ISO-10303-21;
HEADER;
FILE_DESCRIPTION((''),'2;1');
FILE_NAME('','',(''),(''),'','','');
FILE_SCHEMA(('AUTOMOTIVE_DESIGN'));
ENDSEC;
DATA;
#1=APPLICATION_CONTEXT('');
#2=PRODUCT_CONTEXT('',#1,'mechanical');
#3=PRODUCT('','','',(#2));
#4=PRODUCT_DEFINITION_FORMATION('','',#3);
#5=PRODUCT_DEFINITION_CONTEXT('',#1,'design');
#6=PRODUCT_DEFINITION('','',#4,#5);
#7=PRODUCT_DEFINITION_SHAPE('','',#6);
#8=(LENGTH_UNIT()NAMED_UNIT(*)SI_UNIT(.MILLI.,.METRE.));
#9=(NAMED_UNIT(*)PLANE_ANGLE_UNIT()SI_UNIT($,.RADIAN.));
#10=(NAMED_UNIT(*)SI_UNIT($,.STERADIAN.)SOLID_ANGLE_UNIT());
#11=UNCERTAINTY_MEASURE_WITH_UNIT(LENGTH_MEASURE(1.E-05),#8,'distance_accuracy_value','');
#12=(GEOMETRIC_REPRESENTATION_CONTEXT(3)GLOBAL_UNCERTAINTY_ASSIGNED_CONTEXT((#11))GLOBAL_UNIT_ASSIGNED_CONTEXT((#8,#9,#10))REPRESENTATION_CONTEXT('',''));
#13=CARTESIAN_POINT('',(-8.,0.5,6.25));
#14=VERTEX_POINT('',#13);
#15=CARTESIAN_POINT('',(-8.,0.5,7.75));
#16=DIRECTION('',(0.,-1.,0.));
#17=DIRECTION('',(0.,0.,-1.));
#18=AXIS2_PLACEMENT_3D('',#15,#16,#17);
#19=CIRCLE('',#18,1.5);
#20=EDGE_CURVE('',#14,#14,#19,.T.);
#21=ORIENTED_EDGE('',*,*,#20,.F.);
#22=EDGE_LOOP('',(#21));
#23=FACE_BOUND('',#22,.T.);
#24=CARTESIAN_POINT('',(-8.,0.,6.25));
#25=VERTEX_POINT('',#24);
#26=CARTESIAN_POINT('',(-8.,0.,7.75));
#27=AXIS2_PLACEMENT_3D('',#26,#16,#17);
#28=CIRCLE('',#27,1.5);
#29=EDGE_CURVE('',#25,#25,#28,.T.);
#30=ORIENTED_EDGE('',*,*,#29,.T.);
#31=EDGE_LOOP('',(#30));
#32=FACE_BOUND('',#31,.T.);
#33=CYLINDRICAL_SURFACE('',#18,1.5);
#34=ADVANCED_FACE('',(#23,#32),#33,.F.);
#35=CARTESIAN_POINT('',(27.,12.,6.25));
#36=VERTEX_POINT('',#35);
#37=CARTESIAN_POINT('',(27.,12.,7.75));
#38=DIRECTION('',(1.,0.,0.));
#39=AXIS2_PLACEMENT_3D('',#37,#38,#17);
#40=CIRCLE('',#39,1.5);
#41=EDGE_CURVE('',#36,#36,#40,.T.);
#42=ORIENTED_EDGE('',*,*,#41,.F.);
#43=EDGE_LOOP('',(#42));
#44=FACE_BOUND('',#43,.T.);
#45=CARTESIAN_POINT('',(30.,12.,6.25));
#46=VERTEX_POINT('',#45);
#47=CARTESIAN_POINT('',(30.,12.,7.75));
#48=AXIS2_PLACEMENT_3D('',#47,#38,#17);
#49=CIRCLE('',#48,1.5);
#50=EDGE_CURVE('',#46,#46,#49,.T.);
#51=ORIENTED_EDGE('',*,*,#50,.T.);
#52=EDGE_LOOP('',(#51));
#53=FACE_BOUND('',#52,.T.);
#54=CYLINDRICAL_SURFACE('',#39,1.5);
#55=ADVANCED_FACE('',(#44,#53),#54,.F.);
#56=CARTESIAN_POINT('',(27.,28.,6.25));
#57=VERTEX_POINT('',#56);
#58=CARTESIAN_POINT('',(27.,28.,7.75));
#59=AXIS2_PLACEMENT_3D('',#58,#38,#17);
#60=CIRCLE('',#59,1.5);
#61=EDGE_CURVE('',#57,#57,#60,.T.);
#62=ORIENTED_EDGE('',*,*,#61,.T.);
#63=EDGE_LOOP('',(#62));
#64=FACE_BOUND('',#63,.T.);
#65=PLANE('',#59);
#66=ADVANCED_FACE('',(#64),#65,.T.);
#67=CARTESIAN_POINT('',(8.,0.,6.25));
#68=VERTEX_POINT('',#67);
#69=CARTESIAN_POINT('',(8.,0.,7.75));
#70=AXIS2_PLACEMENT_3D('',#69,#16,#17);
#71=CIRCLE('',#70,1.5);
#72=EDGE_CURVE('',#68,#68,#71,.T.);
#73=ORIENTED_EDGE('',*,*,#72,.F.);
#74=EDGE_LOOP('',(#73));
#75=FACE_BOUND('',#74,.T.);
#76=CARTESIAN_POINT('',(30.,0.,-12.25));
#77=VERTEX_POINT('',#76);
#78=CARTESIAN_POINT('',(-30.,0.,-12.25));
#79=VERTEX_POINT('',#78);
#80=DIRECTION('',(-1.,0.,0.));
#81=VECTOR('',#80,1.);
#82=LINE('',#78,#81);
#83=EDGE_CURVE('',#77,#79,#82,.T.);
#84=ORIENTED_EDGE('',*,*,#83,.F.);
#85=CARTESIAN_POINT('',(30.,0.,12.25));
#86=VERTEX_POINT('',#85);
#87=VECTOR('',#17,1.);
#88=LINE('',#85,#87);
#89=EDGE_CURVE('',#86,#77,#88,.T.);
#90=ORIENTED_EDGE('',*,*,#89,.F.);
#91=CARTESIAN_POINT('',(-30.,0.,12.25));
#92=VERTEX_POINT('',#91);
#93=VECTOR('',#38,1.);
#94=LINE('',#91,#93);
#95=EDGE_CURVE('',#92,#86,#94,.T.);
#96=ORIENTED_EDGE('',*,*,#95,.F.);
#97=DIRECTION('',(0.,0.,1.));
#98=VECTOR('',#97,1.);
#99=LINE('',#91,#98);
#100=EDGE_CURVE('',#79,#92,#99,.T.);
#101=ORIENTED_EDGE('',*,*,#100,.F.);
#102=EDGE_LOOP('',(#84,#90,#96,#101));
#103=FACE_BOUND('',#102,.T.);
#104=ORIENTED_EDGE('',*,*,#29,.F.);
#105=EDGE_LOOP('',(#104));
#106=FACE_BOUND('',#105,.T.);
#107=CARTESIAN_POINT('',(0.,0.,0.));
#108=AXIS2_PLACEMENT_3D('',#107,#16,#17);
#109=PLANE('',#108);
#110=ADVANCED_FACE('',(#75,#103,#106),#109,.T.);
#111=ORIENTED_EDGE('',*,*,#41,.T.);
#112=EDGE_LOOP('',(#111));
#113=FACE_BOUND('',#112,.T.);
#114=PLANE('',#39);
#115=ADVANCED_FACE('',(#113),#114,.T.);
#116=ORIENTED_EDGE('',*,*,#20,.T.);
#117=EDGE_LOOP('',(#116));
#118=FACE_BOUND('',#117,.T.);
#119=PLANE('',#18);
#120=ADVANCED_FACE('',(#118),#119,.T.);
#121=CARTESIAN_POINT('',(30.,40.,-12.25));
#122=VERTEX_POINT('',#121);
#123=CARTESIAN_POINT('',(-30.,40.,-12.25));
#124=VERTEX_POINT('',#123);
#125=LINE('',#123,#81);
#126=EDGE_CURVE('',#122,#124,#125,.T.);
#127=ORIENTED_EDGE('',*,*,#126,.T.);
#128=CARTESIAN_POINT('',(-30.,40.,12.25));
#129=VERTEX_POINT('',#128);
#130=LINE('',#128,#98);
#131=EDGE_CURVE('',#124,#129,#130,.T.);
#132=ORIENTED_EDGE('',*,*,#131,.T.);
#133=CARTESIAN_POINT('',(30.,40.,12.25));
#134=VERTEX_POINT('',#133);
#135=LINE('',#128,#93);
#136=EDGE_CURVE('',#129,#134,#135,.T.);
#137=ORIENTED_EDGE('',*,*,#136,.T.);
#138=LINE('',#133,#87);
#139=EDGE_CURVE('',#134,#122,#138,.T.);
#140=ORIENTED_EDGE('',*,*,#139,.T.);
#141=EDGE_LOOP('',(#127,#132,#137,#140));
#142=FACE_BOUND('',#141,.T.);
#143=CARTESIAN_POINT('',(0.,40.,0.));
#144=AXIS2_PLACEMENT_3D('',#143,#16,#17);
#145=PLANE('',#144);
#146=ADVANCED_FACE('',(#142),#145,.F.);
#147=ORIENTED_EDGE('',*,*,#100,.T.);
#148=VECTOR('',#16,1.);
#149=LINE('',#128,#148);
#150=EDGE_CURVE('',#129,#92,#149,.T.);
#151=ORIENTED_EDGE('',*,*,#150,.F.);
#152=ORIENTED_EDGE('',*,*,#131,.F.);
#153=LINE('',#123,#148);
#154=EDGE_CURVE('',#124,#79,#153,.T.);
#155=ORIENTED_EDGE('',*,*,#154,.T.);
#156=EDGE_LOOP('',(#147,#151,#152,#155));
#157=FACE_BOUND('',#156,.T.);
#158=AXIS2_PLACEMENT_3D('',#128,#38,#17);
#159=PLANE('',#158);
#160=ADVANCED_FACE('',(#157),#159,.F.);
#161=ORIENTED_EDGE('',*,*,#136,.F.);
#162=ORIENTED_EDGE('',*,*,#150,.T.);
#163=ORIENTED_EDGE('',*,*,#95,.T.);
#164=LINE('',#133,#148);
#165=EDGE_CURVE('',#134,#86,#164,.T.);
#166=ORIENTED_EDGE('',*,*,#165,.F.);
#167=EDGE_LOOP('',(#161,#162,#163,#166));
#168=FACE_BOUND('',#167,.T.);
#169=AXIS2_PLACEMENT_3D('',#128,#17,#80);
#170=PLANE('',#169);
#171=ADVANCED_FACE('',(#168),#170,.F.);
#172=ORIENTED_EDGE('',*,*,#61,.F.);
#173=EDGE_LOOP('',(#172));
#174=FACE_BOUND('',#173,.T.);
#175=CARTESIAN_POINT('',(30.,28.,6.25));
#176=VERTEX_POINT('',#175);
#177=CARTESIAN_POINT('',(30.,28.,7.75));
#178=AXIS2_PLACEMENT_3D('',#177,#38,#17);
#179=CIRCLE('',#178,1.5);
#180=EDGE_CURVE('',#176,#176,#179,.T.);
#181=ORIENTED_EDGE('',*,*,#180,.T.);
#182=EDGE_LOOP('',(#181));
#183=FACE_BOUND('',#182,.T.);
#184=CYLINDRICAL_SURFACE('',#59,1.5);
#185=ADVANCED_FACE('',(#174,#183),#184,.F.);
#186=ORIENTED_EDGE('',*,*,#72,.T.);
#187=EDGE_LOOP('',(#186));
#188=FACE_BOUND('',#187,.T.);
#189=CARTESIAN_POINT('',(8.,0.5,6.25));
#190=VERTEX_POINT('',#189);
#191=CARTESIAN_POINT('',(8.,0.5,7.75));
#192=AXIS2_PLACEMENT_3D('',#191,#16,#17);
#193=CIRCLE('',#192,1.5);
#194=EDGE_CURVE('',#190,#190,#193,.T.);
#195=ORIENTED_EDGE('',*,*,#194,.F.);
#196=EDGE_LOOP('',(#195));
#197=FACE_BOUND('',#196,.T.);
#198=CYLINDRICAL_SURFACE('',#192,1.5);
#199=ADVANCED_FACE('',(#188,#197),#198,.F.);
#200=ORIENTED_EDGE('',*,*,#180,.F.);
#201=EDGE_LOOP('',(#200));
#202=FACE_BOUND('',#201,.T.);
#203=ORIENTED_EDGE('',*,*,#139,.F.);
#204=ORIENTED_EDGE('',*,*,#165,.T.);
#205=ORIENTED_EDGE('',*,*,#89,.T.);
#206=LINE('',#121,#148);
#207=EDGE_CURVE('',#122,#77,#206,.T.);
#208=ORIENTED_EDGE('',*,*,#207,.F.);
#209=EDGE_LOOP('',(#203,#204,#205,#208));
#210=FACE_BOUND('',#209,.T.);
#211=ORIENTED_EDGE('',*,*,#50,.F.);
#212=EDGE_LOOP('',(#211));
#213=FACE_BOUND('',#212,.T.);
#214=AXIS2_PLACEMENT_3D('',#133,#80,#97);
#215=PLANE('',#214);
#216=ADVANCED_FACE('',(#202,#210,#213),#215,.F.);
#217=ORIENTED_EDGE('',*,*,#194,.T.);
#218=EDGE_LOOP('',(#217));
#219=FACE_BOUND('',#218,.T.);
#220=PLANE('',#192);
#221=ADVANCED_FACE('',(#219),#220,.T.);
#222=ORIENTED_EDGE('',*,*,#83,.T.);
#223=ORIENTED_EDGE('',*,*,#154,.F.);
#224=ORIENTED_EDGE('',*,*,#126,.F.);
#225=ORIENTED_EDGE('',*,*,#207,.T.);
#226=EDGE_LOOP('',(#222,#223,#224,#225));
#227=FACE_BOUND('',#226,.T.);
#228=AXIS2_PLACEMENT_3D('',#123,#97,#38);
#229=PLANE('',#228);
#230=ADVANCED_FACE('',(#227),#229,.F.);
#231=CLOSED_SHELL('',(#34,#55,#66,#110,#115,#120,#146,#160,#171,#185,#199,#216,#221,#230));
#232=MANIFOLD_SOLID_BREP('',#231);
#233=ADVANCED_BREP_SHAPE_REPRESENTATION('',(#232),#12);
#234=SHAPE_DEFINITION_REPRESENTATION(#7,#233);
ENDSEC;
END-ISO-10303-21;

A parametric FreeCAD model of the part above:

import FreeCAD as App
import Part
import Sketcher
from FreeCAD import Vector
Q = App.Units.Quantity

doc = App.newDocument("Part")
body = doc.addObject("PartDesign::Body", "Body")

# Sketch on XZ plane
sketch1 = doc.addObject("Sketcher::SketchObject", "Sketch")
body.addObject(sketch1)
sketch1.AttachmentSupport = (doc.XZ_Plane, [""])
sketch1.MapMode = "FlatFace"
sketch1.addGeometry([
    Part.LineSegment(Vector(-30, -12.25, 0), Vector(-30, 12.25, 0)),
    Part.LineSegment(Vector(-30, 12.25, 0), Vector(30, 12.25, 0)),
    Part.LineSegment(Vector(30, 12.25, 0), Vector(30, -12.25, 0)),
    Part.LineSegment(Vector(30, -12.25, 0), Vector(-30, -12.25, 0)),
], False)
sketch1.addConstraint([
    Sketcher.Constraint("Coincident", 0, 2, 1, 1),
    Sketcher.Constraint("Coincident", 1, 2, 2, 1),
    Sketcher.Constraint("Coincident", 2, 2, 3, 1),
    Sketcher.Constraint("Coincident", 3, 2, 0, 1),
    Sketcher.Constraint("Vertical", 0),
    Sketcher.Constraint("Horizontal", 1),
    Sketcher.Constraint("Vertical", 2),
    Sketcher.Constraint("Horizontal", 3),
    Sketcher.Constraint("Symmetric", 0, 2, 2, 2, -1, 1),
    Sketcher.Constraint("DistanceX", 1, 1, 1, 2, Q("60 mm")),
    Sketcher.Constraint("DistanceY", 0, 1, 0, 2, Q("24.5 mm")),
])
pad1 = doc.addObject("PartDesign::Pad", "Pad")
body.addObject(pad1)
pad1.Profile = sketch1
pad1.Length = 40
pad1.Reversed = True

# Sketch on XZ plane
sketch2 = doc.addObject("Sketcher::SketchObject", "Sketch001")
body.addObject(sketch2)
sketch2.AttachmentSupport = (doc.XZ_Plane, [""])
sketch2.MapMode = "FlatFace"
sketch2.addGeometry([
    Part.Circle(Vector(-8, 7.75, 0), Vector(0, 0, 1), 1.5),
    Part.Circle(Vector(8, 7.75, 0), Vector(0, 0, 1), 1.5),
], False)
sketch2.addConstraint([
    Sketcher.Constraint("Equal", 0, 1),
    Sketcher.Constraint("Symmetric", 0, 3, 1, 3, -2),
    Sketcher.Constraint("Diameter", 0, Q("3 mm")),
    Sketcher.Constraint("DistanceX", 0, 3, -1, 1, Q("8 mm")),
    Sketcher.Constraint("DistanceY", -1, 1, 0, 3, Q("7.75 mm")),
])
pocket1 = doc.addObject("PartDesign::Pocket", "Pocket")
body.addObject(pocket1)
pocket1.Profile = sketch2
pocket1.Length = 0.5

# Sketch on YZ plane
sketch3 = doc.addObject("Sketcher::SketchObject", "Sketch002")
body.addObject(sketch3)
sketch3.AttachmentSupport = (doc.YZ_Plane, [""])
sketch3.MapMode = "FlatFace"
sketch3.AttachmentOffset = App.Placement(Vector(0, 0, 30), App.Rotation())
sketch3.addGeometry([
    Part.Circle(Vector(28, 7.75, 0), Vector(0, 0, 1), 1.5),
    Part.Circle(Vector(12, 7.75, 0), Vector(0, 0, 1), 1.5),
], False)
sketch3.addConstraint([
    Sketcher.Constraint("Equal", 0, 1),
    Sketcher.Constraint("Horizontal", 0, 3, 1, 3),
    Sketcher.Constraint("Diameter", 0, Q("3 mm")),
    Sketcher.Constraint("DistanceX", -1, 1, 0, 3, Q("28 mm")),
    Sketcher.Constraint("DistanceX", -1, 1, 1, 3, Q("12 mm")),
    Sketcher.Constraint("DistanceY", -1, 1, 0, 3, Q("7.75 mm")),
])
pocket2 = doc.addObject("PartDesign::Pocket", "Pocket001")
body.addObject(pocket2)
pocket2.Profile = sketch3
pocket2.Length = 3

doc.recompute()
